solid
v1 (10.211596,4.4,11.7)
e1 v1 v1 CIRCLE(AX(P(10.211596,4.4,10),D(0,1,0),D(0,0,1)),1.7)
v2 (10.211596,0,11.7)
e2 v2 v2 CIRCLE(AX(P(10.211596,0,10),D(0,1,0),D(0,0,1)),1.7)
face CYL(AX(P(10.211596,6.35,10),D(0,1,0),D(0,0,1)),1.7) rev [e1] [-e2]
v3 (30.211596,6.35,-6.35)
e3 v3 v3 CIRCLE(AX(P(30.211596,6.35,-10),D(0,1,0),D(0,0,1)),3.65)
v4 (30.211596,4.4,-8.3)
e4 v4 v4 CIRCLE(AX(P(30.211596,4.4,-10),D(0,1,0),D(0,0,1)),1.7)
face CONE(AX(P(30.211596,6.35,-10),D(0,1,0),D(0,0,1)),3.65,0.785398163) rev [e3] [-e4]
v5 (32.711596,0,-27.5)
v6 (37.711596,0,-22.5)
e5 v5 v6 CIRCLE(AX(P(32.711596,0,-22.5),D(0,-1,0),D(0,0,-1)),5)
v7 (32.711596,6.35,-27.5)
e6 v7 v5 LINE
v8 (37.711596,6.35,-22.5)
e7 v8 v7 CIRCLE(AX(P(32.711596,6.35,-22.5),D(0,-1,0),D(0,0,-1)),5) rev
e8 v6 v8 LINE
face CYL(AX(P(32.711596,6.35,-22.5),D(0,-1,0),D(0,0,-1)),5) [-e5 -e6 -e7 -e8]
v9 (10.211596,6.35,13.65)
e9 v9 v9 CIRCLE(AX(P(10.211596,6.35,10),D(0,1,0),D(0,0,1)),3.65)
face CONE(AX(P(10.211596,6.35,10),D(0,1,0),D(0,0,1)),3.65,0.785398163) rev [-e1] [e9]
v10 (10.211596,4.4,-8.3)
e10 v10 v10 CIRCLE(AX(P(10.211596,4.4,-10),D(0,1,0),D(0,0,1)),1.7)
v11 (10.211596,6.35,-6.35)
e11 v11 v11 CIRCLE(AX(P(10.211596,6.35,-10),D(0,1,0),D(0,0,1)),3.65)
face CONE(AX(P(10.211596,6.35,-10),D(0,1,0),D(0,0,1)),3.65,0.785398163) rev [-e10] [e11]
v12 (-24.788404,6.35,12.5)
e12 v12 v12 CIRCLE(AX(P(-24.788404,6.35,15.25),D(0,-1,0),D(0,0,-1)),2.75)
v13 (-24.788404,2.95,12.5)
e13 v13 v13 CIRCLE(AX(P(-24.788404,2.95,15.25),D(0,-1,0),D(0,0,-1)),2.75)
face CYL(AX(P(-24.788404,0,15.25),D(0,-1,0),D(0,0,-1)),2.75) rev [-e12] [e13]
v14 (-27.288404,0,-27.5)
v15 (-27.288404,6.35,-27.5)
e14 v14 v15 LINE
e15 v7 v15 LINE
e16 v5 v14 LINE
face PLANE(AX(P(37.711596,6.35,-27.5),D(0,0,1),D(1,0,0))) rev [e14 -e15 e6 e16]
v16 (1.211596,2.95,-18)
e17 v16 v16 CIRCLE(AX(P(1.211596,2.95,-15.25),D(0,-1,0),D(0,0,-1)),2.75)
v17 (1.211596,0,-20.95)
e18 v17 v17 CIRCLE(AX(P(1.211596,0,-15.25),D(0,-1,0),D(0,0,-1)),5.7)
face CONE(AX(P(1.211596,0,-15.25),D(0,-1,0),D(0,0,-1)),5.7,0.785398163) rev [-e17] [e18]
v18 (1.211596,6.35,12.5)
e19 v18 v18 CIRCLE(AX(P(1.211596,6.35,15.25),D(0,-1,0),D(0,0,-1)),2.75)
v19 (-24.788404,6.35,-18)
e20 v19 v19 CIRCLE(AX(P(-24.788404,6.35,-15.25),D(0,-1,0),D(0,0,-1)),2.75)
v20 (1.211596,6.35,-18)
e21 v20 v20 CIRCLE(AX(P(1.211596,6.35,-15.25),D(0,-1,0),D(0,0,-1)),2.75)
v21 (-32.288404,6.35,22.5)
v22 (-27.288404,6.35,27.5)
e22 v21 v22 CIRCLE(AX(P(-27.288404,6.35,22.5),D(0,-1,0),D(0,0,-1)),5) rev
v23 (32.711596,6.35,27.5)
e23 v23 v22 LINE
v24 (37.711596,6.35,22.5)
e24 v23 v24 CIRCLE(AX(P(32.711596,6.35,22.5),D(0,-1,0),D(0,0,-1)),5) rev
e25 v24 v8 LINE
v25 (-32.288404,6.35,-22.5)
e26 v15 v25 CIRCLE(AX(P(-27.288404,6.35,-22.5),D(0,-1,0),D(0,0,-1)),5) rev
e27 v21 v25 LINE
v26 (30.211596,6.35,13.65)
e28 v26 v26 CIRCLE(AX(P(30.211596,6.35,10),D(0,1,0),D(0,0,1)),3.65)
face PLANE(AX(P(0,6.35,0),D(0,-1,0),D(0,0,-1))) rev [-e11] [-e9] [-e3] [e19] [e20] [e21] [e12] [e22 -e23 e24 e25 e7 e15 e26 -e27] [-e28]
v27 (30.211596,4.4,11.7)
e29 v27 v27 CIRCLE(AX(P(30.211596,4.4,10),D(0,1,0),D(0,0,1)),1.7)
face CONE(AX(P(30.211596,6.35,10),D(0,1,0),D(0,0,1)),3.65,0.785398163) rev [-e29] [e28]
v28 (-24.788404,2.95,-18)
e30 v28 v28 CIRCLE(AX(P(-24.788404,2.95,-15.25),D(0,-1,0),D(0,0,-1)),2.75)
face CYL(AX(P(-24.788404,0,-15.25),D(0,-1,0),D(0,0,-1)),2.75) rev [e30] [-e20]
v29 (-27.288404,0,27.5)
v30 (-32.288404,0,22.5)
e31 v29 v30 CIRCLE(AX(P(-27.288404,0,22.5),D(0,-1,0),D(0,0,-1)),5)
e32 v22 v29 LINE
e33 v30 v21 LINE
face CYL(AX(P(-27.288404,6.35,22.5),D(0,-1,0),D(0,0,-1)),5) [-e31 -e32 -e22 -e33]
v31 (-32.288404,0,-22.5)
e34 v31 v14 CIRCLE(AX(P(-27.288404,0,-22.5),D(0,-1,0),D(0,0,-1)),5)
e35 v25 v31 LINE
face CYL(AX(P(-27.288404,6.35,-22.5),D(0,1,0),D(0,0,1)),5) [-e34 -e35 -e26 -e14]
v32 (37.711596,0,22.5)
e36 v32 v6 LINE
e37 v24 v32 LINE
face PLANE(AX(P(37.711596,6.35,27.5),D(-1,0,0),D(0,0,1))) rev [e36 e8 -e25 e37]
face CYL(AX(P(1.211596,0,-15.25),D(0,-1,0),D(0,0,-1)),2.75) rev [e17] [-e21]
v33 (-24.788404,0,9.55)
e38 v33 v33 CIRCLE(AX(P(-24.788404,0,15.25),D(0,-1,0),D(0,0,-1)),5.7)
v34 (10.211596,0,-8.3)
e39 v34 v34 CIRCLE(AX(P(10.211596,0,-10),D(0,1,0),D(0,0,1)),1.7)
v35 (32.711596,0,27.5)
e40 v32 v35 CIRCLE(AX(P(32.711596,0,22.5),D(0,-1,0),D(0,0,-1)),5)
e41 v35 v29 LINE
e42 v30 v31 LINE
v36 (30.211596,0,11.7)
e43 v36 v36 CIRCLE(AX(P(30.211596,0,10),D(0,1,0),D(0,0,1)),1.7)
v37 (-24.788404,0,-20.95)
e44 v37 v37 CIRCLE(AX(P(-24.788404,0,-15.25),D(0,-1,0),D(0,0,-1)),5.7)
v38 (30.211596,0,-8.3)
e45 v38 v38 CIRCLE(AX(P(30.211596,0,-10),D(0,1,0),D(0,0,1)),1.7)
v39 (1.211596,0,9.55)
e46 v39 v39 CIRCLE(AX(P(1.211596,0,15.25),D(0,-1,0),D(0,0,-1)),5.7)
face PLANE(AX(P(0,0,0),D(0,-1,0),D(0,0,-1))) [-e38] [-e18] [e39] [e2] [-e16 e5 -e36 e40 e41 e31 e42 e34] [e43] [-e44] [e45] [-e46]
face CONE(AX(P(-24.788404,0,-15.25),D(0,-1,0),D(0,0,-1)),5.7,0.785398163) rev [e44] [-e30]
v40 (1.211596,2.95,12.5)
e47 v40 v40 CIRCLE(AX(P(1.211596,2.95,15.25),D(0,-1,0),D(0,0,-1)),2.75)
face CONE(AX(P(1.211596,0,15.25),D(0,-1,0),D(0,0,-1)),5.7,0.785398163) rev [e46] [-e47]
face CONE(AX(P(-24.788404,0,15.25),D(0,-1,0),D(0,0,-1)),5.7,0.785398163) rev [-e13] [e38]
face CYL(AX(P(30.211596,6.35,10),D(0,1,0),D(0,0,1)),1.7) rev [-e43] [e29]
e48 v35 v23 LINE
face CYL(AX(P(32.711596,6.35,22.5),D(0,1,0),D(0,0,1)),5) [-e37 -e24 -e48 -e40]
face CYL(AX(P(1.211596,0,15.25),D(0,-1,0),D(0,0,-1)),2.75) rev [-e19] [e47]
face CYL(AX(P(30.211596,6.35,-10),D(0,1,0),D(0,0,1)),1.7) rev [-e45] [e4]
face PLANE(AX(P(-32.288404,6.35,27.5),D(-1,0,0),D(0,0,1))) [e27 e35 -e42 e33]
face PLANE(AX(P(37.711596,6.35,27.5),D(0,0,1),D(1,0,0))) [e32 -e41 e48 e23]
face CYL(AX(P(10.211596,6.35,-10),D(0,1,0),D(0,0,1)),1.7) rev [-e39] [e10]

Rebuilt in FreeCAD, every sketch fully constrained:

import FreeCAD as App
import Part
import Sketcher

V = App.Vector
Q = App.Units.Quantity


def edges_at(feature, points):
    """Names of the edges that pass closest to the given points."""
    edges = feature.Shape.Edges
    near = lambda p: min(range(len(edges)), key=lambda i: edges[i].distToShape(Part.Vertex(*p))[0])
    return sorted({f"Edge{near(p) + 1}" for p in points})

doc = App.newDocument("Part")
params = doc.addObject("Spreadsheet::Sheet", "Params")
for row, (alias, value) in enumerate([
    ("sketch1_width", "70 mm"),
    ("sketch1_height", "55 mm"),
    ("pad1_length", "6.35 mm"),
    ("sketch2_diameter", "2 mm"),
    ("pocket1_length", "6.35 mm"),
    ("sketch3_diameter", "3.4 mm"),
    ("hole_diameter", "3.4 mm"),
    ("hole_csink_diameter", "7.3 mm"),
    ("fillet_radius", "5 mm"),
    ("sketch4_diameter", "5.5 mm"),
    ("hole2_diameter", "5.5 mm"),
    ("hole2_csink_diameter", "11.4 mm"),
], start=1):
    params.set(f"A{row}", alias)
    params.set(f"B{row}", "=" + value)
    params.setAlias(f"B{row}", alias)

body = doc.addObject("PartDesign::Body", "Body")

sketch1 = body.newObject("Sketcher::SketchObject", "Sketch")
sketch1.AttachmentSupport = (doc.getObject("XZ_Plane"), [""])
sketch1.MapMode = "FlatFace"
sketch1.addGeometry([
    Part.LineSegment(V(-32.288404, -27.5, 0), V(-32.288404, 27.5, 0)),
    Part.LineSegment(V(-32.288404, 27.5, 0), V(37.711596, 27.5, 0)),
    Part.LineSegment(V(37.711596, 27.5, 0), V(37.711596, -27.5, 0)),
    Part.LineSegment(V(37.711596, -27.5, 0), V(-32.288404, -27.5, 0)),
], False)
sketch1.addConstraint([
    Sketcher.Constraint("Coincident", 0, 2, 1, 1),
    Sketcher.Constraint("Coincident", 1, 2, 2, 1),
    Sketcher.Constraint("Coincident", 2, 2, 3, 1),
    Sketcher.Constraint("Coincident", 3, 2, 0, 1),
    Sketcher.Constraint("Vertical", 0),
    Sketcher.Constraint("Horizontal", 1),
    Sketcher.Constraint("Vertical", 2),
    Sketcher.Constraint("Horizontal", 3),
    Sketcher.Constraint("DistanceX", 1, 1, 1, 2, Q("70 mm")),
    Sketcher.Constraint("DistanceY", 0, 1, 0, 2, Q("55 mm")),
    Sketcher.Constraint("DistanceY", -1, 1, 0, 2, Q("27.5 mm")),
    Sketcher.Constraint("DistanceX", 0, 2, -1, 1, Q("32.288404 mm")),
])
sketch1.setExpression("Constraints[8]", "Params.sketch1_width")
sketch1.setExpression("Constraints[9]", "Params.sketch1_height")
pad1 = body.newObject("PartDesign::Pad", "Pad")
pad1.Profile = sketch1
pad1.setExpression("Length", "Params.pad1_length")
pad1.Reversed = True

sketch2 = body.newObject("Sketcher::SketchObject", "Sketch001")
sketch2.AttachmentSupport = (doc.getObject("XZ_Plane"), [""])
sketch2.MapMode = "FlatFace"
sketch2.AttachmentOffset = App.Placement(V(0, 0, -6.35), App.Rotation())
sketch2.addGeometry([
    Part.Circle(V(30.211596, 10, 0), V(0, 0, 1), 1),
    Part.Circle(V(10.211596, 10, 0), V(0, 0, 1), 1),
    Part.Circle(V(30.211596, -10, 0), V(0, 0, 1), 1),
    Part.Circle(V(10.211596, -10, 0), V(0, 0, 1), 1),
    Part.Circle(V(1.211596, 15.25, 0), V(0, 0, 1), 1),
    Part.Circle(V(-24.788404, 15.25, 0), V(0, 0, 1), 1),
    Part.Circle(V(1.211596, -15.25, 0), V(0, 0, 1), 1),
    Part.Circle(V(-24.788404, -15.25, 0), V(0, 0, 1), 1),
], False)
sketch2.addConstraint([
    Sketcher.Constraint("Equal", 0, 1),
    Sketcher.Constraint("Equal", 1, 2),
    Sketcher.Constraint("Equal", 2, 3),
    Sketcher.Constraint("Equal", 3, 4),
    Sketcher.Constraint("Equal", 4, 5),
    Sketcher.Constraint("Equal", 5, 6),
    Sketcher.Constraint("Equal", 6, 7),
    Sketcher.Constraint("Symmetric", 0, 3, 2, 3, -1),
    Sketcher.Constraint("Symmetric", 1, 3, 3, 3, -1),
    Sketcher.Constraint("Symmetric", 4, 3, 6, 3, -1),
    Sketcher.Constraint("Symmetric", 5, 3, 7, 3, -1),
    Sketcher.Constraint("Horizontal", 0, 3, 1, 3),
    Sketcher.Constraint("Horizontal", 4, 3, 5, 3),
    Sketcher.Constraint("Diameter", 0, Q("2 mm")),
    Sketcher.Constraint("DistanceY", -1, 1, 0, 3, Q("10 mm")),
    Sketcher.Constraint("DistanceX", 1, 3, 0, 3, Q("20 mm")),
    Sketcher.Constraint("DistanceX", 4, 3, 1, 3, Q("9 mm")),
    Sketcher.Constraint("DistanceX", 5, 3, 4, 3, Q("26 mm")),
    Sketcher.Constraint("DistanceY", 6, 3, 4, 3, Q("30.5 mm")),
    Sketcher.Constraint("DistanceX", -1, 1, 0, 3, Q("30.211596 mm")),
])
sketch2.setExpression("Constraints[13]", "Params.sketch2_diameter")
pocket1 = body.newObject("PartDesign::Pocket", "Pocket")
pocket1.Profile = sketch2
pocket1.setExpression("Length", "Params.pocket1_length")
pocket1.Reversed = True

sketch3 = body.newObject("Sketcher::SketchObject", "Sketch002")
sketch3.AttachmentSupport = (doc.getObject("XZ_Plane"), [""])
sketch3.MapMode = "FlatFace"
sketch3.AttachmentOffset = App.Placement(V(0, 0, -6.35), App.Rotation())
sketch3.addGeometry([
    Part.Circle(V(30.211596, 10, 0), V(0, 0, 1), 1.7),
    Part.Circle(V(10.211596, 10, 0), V(0, 0, 1), 1.7),
    Part.Circle(V(10.211596, -10, 0), V(0, 0, 1), 1.7),
    Part.Circle(V(30.211596, -10, 0), V(0, 0, 1), 1.7),
], False)
sketch3.addConstraint([
    Sketcher.Constraint("Equal", 0, 1),
    Sketcher.Constraint("Equal", 1, 2),
    Sketcher.Constraint("Equal", 2, 3),
    Sketcher.Constraint("Symmetric", 1, 3, 2, 3, -1),
    Sketcher.Constraint("Symmetric", 0, 3, 3, 3, -1),
    Sketcher.Constraint("Horizontal", 0, 3, 1, 3),
    Sketcher.Constraint("Diameter", 0, Q("3.4 mm")),
    Sketcher.Constraint("DistanceY", -1, 1, 0, 3, Q("10 mm")),
    Sketcher.Constraint("DistanceX", 1, 3, 0, 3, Q("20 mm")),
    Sketcher.Constraint("DistanceX", -1, 1, 0, 3, Q("30.211596 mm")),
])
sketch3.setExpression("Constraints[6]", "Params.sketch3_diameter")
doc.recompute()
hole = body.newObject("PartDesign::Hole", "Hole")
hole.Profile = sketch3
hole.ThreadType = "None"
hole.setExpression("Diameter", "Params.hole_diameter")
hole.DepthType = "ThroughAll"
hole.HoleCutType = "Countersink"
hole.setExpression("HoleCutDiameter", "Params.hole_csink_diameter")
hole.HoleCutCountersinkAngle = 90
hole.Reversed = True
doc.recompute()

fillet = body.newObject("PartDesign::Fillet", "Fillet")
fillet.Base = (hole, edges_at(hole, [
    (37.712, 3.175, 27.5),
    (37.712, 3.175, -27.5),
    (-32.288, 3.175, -27.5),
    (-32.288, 3.175, 27.5),
]))
fillet.setExpression("Radius", "Params.fillet_radius")

sketch4 = body.newObject("Sketcher::SketchObject", "Sketch003")
sketch4.AttachmentSupport = (doc.getObject("XZ_Plane"), [""])
sketch4.MapMode = "FlatFace"
sketch4.addGeometry([
    Part.Circle(V(-24.788404, 15.25, 0), V(0, 0, 1), 2.75),
    Part.Circle(V(-24.788404, -15.25, 0), V(0, 0, 1), 2.75),
    Part.Circle(V(1.211596, -15.25, 0), V(0, 0, 1), 2.75),
    Part.Circle(V(1.211596, 15.25, 0), V(0, 0, 1), 2.75),
], False)
sketch4.addConstraint([
    Sketcher.Constraint("Equal", 0, 1),
    Sketcher.Constraint("Equal", 1, 2),
    Sketcher.Constraint("Equal", 2, 3),
    Sketcher.Constraint("Symmetric", 0, 3, 1, 3, -1),
    Sketcher.Constraint("Symmetric", 2, 3, 3, 3, -1),
    Sketcher.Constraint("Horizontal", 1, 3, 2, 3),
    Sketcher.Constraint("Diameter", 0, Q("5.5 mm")),
    Sketcher.Constraint("DistanceX", 1, 3, 2, 3, Q("26 mm")),
    Sketcher.Constraint("DistanceY", 1, 3, 0, 3, Q("30.5 mm")),
    Sketcher.Constraint("DistanceX", 0, 3, -1, 1, Q("24.788404 mm")),
])
sketch4.setExpression("Constraints[6]", "Params.sketch4_diameter")
doc.recompute()
hole2 = body.newObject("PartDesign::Hole", "Hole001")
hole2.Profile = sketch4
hole2.ThreadType = "None"
hole2.setExpression("Diameter", "Params.hole2_diameter")
hole2.DepthType = "ThroughAll"
hole2.HoleCutType = "Countersink"
hole2.setExpression("HoleCutDiameter", "Params.hole2_csink_diameter")
hole2.HoleCutCountersinkAngle = 90

doc.recompute()
